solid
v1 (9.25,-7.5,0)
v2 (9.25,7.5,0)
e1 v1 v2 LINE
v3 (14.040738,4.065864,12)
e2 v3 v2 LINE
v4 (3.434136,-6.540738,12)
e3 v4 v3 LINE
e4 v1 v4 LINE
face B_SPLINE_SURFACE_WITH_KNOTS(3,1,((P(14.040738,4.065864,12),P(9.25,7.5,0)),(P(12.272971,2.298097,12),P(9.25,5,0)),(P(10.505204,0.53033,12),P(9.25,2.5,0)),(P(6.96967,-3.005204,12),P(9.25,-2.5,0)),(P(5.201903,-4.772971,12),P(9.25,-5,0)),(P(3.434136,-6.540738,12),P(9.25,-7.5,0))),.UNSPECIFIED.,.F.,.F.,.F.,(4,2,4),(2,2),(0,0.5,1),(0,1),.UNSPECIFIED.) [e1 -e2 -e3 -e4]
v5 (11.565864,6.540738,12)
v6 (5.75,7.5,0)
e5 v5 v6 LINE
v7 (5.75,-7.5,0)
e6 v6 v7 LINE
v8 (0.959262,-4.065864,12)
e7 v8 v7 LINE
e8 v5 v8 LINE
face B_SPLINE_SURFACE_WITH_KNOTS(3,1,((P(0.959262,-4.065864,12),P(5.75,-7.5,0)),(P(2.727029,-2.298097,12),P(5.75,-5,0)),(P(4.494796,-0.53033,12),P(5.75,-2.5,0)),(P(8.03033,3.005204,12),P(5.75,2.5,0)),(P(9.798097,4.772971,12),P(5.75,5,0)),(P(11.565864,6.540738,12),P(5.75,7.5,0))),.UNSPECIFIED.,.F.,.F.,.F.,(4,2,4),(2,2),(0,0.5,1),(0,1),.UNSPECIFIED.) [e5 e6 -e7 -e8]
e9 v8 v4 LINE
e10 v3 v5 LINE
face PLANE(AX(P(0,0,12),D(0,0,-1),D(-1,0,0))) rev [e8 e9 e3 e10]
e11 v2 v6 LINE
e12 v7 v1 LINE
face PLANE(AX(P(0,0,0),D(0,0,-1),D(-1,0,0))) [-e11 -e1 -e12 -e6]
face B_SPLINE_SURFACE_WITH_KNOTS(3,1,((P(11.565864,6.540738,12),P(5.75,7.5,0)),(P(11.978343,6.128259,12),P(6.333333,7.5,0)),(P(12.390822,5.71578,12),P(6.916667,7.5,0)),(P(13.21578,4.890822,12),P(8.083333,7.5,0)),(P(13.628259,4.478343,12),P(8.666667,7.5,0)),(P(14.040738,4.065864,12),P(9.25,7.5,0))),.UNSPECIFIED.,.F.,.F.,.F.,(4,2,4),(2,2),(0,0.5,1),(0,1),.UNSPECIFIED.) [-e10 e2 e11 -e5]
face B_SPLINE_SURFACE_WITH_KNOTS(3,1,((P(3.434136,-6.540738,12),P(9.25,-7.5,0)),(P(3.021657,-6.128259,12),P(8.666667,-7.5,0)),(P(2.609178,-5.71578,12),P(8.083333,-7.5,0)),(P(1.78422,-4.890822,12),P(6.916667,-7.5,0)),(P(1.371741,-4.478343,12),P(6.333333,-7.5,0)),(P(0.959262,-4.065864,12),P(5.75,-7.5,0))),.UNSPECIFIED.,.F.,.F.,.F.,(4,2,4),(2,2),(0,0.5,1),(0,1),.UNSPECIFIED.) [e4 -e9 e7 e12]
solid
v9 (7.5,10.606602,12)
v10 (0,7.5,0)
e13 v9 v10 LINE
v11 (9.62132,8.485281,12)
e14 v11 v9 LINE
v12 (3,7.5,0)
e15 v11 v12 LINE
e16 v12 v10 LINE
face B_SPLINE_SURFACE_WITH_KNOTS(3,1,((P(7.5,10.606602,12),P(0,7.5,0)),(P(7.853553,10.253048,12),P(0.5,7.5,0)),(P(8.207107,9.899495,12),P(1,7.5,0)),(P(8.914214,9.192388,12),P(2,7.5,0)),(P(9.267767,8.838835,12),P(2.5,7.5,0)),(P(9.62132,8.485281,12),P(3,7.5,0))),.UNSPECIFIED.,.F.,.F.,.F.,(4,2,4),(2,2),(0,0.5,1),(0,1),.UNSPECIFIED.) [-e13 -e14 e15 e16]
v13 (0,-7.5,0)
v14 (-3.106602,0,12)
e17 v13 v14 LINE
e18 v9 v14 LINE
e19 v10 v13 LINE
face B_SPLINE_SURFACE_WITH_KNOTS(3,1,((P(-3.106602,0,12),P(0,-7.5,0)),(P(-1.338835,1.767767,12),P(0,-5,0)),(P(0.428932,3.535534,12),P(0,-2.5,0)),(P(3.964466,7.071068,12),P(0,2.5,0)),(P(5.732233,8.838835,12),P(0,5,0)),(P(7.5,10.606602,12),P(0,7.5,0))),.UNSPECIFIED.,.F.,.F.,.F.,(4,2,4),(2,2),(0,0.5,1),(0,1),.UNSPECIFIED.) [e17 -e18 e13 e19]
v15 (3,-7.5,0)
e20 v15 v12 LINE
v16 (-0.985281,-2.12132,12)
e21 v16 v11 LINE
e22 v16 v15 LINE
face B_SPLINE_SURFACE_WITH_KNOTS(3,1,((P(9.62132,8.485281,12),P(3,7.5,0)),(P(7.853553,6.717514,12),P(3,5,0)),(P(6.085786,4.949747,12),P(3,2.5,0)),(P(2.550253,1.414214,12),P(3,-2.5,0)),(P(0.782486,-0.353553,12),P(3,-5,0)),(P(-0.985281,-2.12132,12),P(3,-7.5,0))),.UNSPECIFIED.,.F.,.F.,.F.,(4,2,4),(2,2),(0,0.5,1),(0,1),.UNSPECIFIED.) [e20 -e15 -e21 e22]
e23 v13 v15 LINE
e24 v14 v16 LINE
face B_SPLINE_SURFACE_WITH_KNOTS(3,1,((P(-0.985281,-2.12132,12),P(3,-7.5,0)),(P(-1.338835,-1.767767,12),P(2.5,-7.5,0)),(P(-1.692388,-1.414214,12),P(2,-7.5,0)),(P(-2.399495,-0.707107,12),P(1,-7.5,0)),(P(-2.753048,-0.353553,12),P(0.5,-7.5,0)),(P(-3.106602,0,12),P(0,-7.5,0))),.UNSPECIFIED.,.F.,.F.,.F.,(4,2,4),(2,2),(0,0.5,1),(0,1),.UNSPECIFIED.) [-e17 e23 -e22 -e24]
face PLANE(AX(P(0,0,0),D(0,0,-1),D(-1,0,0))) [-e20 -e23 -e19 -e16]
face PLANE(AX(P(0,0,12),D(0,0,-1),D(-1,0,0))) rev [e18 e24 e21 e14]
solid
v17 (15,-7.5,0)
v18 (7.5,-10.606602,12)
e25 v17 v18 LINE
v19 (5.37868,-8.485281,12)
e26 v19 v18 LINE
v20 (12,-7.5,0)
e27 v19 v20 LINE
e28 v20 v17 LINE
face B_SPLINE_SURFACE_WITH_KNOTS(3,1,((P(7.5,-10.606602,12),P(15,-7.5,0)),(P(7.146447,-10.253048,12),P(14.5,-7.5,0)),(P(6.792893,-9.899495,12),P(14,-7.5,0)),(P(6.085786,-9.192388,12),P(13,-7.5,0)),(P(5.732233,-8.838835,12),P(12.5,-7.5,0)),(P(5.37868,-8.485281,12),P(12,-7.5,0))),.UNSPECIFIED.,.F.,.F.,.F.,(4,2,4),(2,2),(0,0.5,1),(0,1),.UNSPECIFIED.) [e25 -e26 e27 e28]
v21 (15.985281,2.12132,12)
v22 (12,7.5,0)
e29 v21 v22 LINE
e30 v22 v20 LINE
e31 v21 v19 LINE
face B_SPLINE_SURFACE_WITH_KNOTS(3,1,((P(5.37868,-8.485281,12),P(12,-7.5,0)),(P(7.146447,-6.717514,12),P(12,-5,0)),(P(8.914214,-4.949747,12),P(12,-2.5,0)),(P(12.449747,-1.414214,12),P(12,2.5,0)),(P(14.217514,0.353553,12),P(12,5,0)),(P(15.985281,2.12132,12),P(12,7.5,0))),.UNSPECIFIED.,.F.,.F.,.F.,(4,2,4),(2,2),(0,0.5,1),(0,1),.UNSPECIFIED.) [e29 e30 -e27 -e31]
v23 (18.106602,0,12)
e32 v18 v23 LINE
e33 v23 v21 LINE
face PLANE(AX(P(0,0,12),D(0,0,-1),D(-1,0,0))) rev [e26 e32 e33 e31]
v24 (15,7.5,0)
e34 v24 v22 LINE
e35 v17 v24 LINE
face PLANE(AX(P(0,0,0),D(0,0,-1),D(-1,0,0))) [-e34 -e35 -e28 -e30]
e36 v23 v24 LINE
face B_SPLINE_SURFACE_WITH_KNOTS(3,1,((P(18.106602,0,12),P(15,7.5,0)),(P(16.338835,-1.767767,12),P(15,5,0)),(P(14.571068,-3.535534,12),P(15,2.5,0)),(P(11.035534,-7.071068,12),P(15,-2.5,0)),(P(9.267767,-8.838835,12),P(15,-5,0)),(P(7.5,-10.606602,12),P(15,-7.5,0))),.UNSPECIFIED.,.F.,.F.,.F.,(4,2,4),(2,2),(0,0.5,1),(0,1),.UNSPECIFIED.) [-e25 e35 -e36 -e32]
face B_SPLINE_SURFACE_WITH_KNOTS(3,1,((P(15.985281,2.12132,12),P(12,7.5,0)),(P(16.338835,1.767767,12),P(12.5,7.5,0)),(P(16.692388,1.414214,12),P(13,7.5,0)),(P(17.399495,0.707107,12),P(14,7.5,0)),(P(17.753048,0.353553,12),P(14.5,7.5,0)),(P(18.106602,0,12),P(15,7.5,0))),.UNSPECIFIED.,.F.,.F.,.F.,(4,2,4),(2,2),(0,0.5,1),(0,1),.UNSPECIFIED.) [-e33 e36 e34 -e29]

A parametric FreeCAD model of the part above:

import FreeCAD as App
import Part
import Sketcher

V = App.Vector
Q = App.Units.Quantity


def add_polygon(sketch, points):
    """Adds a closed chain of lines whose ends are joined by coincident constraints."""
    first, n = sketch.GeometryCount, len(points)
    for a, b in zip(points, points[1:] + points[:1]):
        sketch.addGeometry(Part.LineSegment(App.Vector(*a, 0), App.Vector(*b, 0)), False)
    for i in range(n):
        sketch.addConstraint(Sketcher.Constraint("Coincident", first + i, 2, first + (i + 1) % n, 1))

doc = App.newDocument("Part")
body = doc.addObject("PartDesign::Body", "Body")

# Sketch on XY plane
sketch1 = doc.addObject("Sketcher::SketchObject", "Sketch")
body.addObject(sketch1)
sketch1.AttachmentSupport = (doc.XY_Plane, [""])
sketch1.MapMode = "FlatFace"
sketch1.AttachmentOffset = App.Placement(V(0, 0, 12), App.Rotation())
add_polygon(sketch1, [(7.5, 10.6), (-3.1, 0), (-1, -2.1), (9.6, 8.5)])  # lines 0-3
sketch1.addConstraint(Sketcher.Constraint("PointOnObject", 0, 2, -1))
sketch1.addConstraint(Sketcher.Constraint("Perpendicular", 0, 1))
sketch1.addConstraint(Sketcher.Constraint("Perpendicular", 1, 2))
sketch1.addConstraint(Sketcher.Constraint("Perpendicular", 2, 3))
sketch1.addConstraint(Sketcher.Constraint("Angle", 0, Q("-135 deg")))
sketch1.addConstraint(Sketcher.Constraint("Distance", 0, Q("15 mm")))
sketch1.addConstraint(Sketcher.Constraint("Distance", 1, Q("3 mm")))
sketch1.addConstraint(Sketcher.Constraint("DistanceX", -1, 1, 3, 2, Q("7.5 mm")))

# Sketch on XY plane
sketch2 = doc.addObject("Sketcher::SketchObject", "Sketch001")
body.addObject(sketch2)
sketch2.AttachmentSupport = (doc.XY_Plane, [""])
sketch2.MapMode = "FlatFace"
add_polygon(sketch2, [(0, -7.5), (3, -7.5), (3, 7.5), (0, 7.5)])  # lines 0-3
sketch2.addConstraint(Sketcher.Constraint("Horizontal", 0))
sketch2.addConstraint(Sketcher.Constraint("Vertical", 1))
sketch2.addConstraint(Sketcher.Constraint("Horizontal", 2))
sketch2.addConstraint(Sketcher.Constraint("Vertical", 3))
sketch2.addConstraint(Sketcher.Constraint("Symmetric", 2, 2, 3, 2, -1, 1))
sketch2.addConstraint(Sketcher.Constraint("DistanceX", 0, 1, 0, 2, Q("3 mm")))
sketch2.addConstraint(Sketcher.Constraint("DistanceY", 1, 1, 1, 2, Q("15 mm")))

additiveloft = doc.addObject("PartDesign::AdditiveLoft", "AdditiveLoft")
body.addObject(additiveloft)
additiveloft.Profile = sketch1
additiveloft.Sections = [sketch2]
body2 = doc.addObject("PartDesign::Body", "Body001")

# Sketch on XY plane
sketch3 = doc.addObject("Sketcher::SketchObject", "Sketch002")
body2.addObject(sketch3)
sketch3.AttachmentSupport = (doc.getObject("XY_Plane001"), [""])
sketch3.MapMode = "FlatFace"
sketch3.AttachmentOffset = App.Placement(V(0, 0, 12), App.Rotation())
add_polygon(sketch3, [(11.6, 6.5), (1, -4.1), (3.4, -6.5), (14, 4.1)])  # lines 0-3
sketch3.addConstraint(Sketcher.Constraint("Perpendicular", 0, 1))
sketch3.addConstraint(Sketcher.Constraint("Perpendicular", 1, 2))
sketch3.addConstraint(Sketcher.Constraint("Perpendicular", 2, 3))
sketch3.addConstraint(Sketcher.Constraint("Angle", 0, Q("-135 deg")))
sketch3.addConstraint(Sketcher.Constraint("Distance", 0, Q("15 mm")))
sketch3.addConstraint(Sketcher.Constraint("Distance", 1, Q("3.5 mm")))
sketch3.addConstraint(Sketcher.Constraint("DistanceX", -1, 1, 0, 2, Q("0.959262 mm")))
sketch3.addConstraint(Sketcher.Constraint("DistanceY", 0, 2, -1, 1, Q("4.065864 mm")))

# Sketch on XY plane
sketch4 = doc.addObject("Sketcher::SketchObject", "Sketch003")
body2.addObject(sketch4)
sketch4.AttachmentSupport = (doc.getObject("XY_Plane001"), [""])
sketch4.MapMode = "FlatFace"
add_polygon(sketch4, [(5.8, -7.5), (9.2, -7.5), (9.2, 7.5), (5.8, 7.5)])  # lines 0-3
sketch4.addConstraint(Sketcher.Constraint("Horizontal", 0))
sketch4.addConstraint(Sketcher.Constraint("Vertical", 1))
sketch4.addConstraint(Sketcher.Constraint("Horizontal", 2))
sketch4.addConstraint(Sketcher.Constraint("Vertical", 3))
sketch4.addConstraint(Sketcher.Constraint("DistanceY", 1, 1, 1, 2, Q("15 mm")))
sketch4.addConstraint(Sketcher.Constraint("DistanceX", 0, 1, 0, 2, Q("3.5 mm")))
sketch4.addConstraint(Sketcher.Constraint("DistanceY", 0, 2, -1, 1, Q("7.5 mm")))
sketch4.addConstraint(Sketcher.Constraint("DistanceX", -1, 1, 0, 2, Q("9.25 mm")))

additiveloft2 = doc.addObject("PartDesign::AdditiveLoft", "AdditiveLoft001")
body2.addObject(additiveloft2)
additiveloft2.Profile = sketch3
additiveloft2.Sections = [sketch4]
body3 = doc.addObject("PartDesign::Body", "Body002")

# Sketch on XY plane
sketch5 = doc.addObject("Sketcher::SketchObject", "Sketch004")
body3.addObject(sketch5)
sketch5.AttachmentSupport = (doc.getObject("XY_Plane002"), [""])
sketch5.MapMode = "FlatFace"
sketch5.AttachmentOffset = App.Placement(V(0, 0, 12), App.Rotation())
add_polygon(sketch5, [(16, 2.1), (5.4, -8.5), (7.5, -10.6), (18.1, 0)])  # lines 0-3
sketch5.addConstraint(Sketcher.Constraint("PointOnObject", 2, 2, -1))
sketch5.addConstraint(Sketcher.Constraint("Perpendicular", 0, 1))
sketch5.addConstraint(Sketcher.Constraint("Perpendicular", 1, 2))
sketch5.addConstraint(Sketcher.Constraint("Perpendicular", 2, 3))
sketch5.addConstraint(Sketcher.Constraint("Angle", 0, Q("-135 deg")))
sketch5.addConstraint(Sketcher.Constraint("Distance", 0, Q("15 mm")))
sketch5.addConstraint(Sketcher.Constraint("Distance", 1, Q("3 mm")))
sketch5.addConstraint(Sketcher.Constraint("DistanceX", -1, 1, 1, 2, Q("7.5 mm")))

# Sketch on XY plane
sketch6 = doc.addObject("Sketcher::SketchObject", "Sketch005")
body3.addObject(sketch6)
sketch6.AttachmentSupport = (doc.getObject("XY_Plane002"), [""])
sketch6.MapMode = "FlatFace"
add_polygon(sketch6, [(12, -7.5), (15, -7.5), (15, 7.5), (12, 7.5)])  # lines 0-3
sketch6.addConstraint(Sketcher.Constraint("Horizontal", 0))
sketch6.addConstraint(Sketcher.Constraint("Vertical", 1))
sketch6.addConstraint(Sketcher.Constraint("Horizontal", 2))
sketch6.addConstraint(Sketcher.Constraint("Vertical", 3))
sketch6.addConstraint(Sketcher.Constraint("DistanceX", 0, 1, 0, 2, Q("3 mm")))
sketch6.addConstraint(Sketcher.Constraint("DistanceY", 1, 1, 1, 2, Q("15 mm")))
sketch6.addConstraint(Sketcher.Constraint("DistanceX", -1, 1, 0, 2, Q("15 mm")))
sketch6.addConstraint(Sketcher.Constraint("DistanceY", 0, 2, -1, 1, Q("7.5 mm")))

additiveloft3 = doc.addObject("PartDesign::AdditiveLoft", "AdditiveLoft002")
body3.addObject(additiveloft3)
additiveloft3.Profile = sketch5
additiveloft3.Sections = [sketch6]

doc.recompute()
